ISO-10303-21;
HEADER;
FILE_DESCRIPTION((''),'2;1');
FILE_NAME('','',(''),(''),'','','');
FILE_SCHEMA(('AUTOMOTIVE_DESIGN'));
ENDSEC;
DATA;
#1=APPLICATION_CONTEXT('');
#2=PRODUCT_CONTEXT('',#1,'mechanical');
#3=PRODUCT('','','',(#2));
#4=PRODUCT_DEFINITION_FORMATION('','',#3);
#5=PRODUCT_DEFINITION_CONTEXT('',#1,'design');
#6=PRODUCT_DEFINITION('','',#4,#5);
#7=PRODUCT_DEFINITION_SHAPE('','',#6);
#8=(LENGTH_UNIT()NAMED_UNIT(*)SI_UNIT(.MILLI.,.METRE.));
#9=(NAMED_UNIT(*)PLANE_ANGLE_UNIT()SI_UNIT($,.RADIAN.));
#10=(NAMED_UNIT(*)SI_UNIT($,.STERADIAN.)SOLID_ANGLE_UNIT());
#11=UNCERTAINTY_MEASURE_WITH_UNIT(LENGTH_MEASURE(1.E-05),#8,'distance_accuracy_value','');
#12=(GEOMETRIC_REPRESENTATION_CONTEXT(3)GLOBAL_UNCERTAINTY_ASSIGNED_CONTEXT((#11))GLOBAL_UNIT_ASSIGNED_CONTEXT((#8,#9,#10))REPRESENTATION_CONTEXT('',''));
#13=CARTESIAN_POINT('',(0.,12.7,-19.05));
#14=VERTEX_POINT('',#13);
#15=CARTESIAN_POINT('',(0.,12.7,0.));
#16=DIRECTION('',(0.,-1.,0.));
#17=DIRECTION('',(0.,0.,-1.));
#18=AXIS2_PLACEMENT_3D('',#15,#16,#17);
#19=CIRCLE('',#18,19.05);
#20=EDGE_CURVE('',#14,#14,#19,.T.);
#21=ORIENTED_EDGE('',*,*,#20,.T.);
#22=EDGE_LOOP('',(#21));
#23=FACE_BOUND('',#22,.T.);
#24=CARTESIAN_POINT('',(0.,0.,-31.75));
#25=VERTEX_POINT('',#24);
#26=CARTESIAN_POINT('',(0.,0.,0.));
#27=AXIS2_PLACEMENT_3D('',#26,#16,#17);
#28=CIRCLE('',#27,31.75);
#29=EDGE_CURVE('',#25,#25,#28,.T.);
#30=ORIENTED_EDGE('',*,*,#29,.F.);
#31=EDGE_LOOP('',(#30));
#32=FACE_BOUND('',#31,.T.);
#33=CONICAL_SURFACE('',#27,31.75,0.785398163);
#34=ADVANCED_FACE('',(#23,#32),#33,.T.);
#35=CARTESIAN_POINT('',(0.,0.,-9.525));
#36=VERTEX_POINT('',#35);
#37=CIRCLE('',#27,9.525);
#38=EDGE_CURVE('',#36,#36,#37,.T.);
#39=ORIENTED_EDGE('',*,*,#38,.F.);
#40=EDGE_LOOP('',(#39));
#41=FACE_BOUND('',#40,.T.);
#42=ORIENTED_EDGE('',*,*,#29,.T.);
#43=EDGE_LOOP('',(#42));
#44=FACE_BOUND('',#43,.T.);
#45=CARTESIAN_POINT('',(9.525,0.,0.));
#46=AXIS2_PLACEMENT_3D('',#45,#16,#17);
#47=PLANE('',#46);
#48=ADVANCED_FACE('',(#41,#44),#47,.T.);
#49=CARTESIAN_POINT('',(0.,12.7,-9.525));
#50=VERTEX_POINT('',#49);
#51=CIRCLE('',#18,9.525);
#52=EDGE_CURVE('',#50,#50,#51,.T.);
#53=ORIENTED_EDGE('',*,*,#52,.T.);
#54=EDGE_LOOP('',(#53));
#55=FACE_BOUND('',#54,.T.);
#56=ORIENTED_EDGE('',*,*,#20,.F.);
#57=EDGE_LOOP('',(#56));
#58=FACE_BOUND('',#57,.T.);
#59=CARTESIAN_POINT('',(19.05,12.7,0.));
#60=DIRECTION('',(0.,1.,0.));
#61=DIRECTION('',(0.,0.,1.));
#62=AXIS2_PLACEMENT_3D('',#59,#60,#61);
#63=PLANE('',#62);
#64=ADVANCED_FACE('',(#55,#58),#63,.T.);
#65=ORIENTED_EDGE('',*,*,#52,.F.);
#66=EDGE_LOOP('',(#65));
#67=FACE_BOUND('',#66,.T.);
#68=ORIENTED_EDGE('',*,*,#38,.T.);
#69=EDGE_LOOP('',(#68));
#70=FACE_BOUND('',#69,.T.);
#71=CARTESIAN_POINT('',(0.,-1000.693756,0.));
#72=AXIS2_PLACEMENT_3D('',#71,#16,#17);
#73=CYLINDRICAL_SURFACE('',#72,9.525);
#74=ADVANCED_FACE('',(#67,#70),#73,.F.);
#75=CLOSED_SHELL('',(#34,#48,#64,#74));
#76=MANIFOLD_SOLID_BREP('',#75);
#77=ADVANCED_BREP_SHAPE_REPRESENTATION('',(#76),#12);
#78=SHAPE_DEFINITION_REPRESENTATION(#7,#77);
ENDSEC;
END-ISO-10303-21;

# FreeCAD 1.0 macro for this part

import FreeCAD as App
import Part
import Sketcher

V = App.Vector
Q = App.Units.Quantity

doc = App.newDocument("Part")
body = doc.addObject("PartDesign::Body", "Body")

sketch1 = body.newObject("Sketcher::SketchObject", "Sketch")
sketch1.AttachmentSupport = (doc.getObject("XY_Plane"), [""])
sketch1.MapMode = "FlatFace"
sketch1.addGeometry(Part.LineSegment(V(10, 0, 0), V(32, 0, 0)), False)
sketch1.addGeometry(Part.LineSegment(V(32, 0, 0), V(19, 13, 0)), False)
sketch1.addGeometry(Part.LineSegment(V(19, 13, 0), V(10, 13, 0)), False)
sketch1.addGeometry(Part.LineSegment(V(10, 13, 0), V(10, 0, 0)), False)
sketch1.addConstraint(Sketcher.Constraint("Coincident", 0, 2, 1, 1))
sketch1.addConstraint(Sketcher.Constraint("Coincident", 1, 2, 2, 1))
sketch1.addConstraint(Sketcher.Constraint("Coincident", 2, 2, 3, 1))
sketch1.addConstraint(Sketcher.Constraint("Coincident", 3, 2, 0, 1))
sketch1.addConstraint(Sketcher.Constraint("Horizontal", 0))
sketch1.addConstraint(Sketcher.Constraint("Horizontal", 2))
sketch1.addConstraint(Sketcher.Constraint("Vertical", 3))
sketch1.addConstraint(Sketcher.Constraint("PointOnObject", 0, 2, -1))
sketch1.addConstraint(Sketcher.Constraint("DistanceY", 3, 2, 3, 1, Q("0.5 in")))
sketch1.addConstraint(Sketcher.Constraint("Angle", 1, Q("135 deg")))
sketch1.addConstraint(Sketcher.Constraint("DistanceX", 0, 1, 0, 2, Q("0.875 in")))
sketch1.addConstraint(Sketcher.Constraint("DistanceX", -1, 1, 0, 2, Q("1.25 in")))
revolution = body.newObject("PartDesign::Revolution", "Revolution")
revolution.Profile = sketch1
revolution.ReferenceAxis = (sketch1, ["V_Axis"])
revolution.Angle = 360

doc.recompute()
